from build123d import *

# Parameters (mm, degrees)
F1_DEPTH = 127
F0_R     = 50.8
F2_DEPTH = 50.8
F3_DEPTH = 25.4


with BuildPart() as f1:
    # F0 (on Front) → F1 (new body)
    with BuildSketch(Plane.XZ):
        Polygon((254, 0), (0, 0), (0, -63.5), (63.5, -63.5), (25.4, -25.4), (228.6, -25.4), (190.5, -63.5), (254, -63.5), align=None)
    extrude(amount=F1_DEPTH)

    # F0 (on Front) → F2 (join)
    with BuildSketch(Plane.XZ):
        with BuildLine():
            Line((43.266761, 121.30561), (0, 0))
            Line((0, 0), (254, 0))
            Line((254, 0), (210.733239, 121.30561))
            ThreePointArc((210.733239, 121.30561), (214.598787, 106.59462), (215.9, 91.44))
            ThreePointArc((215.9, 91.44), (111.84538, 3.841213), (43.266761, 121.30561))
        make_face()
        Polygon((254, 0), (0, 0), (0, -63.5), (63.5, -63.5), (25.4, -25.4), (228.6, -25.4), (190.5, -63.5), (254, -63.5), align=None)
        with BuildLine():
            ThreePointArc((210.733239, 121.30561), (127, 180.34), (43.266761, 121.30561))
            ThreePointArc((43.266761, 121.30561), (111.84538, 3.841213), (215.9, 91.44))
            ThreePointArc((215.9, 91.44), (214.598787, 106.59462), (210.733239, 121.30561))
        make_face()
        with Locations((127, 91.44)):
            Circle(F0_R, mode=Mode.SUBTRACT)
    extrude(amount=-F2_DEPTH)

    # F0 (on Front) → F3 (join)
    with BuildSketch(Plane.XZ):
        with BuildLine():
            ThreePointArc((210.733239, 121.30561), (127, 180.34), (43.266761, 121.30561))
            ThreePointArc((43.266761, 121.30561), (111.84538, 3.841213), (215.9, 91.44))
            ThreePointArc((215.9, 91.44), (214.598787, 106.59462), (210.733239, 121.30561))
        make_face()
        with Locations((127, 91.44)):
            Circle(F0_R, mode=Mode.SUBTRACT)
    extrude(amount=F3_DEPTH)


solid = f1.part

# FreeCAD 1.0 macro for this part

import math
import FreeCAD as App
import Part
import Sketcher

V = App.Vector
Q = App.Units.Quantity

doc = App.newDocument("Part")
body = doc.addObject("PartDesign::Body", "Body")

# Sketch on XZ plane
sketch1 = doc.addObject("Sketcher::SketchObject", "Sketch")
body.addObject(sketch1)
sketch1.AttachmentSupport = (doc.XZ_Plane, [""])
sketch1.MapMode = "FlatFace"
sketch1.addGeometry([
    Part.LineSegment(V(254, 0, 0), V(0, 0, 0)),  # 0
    Part.LineSegment(V(0, 0, 0), V(0, -64, 0)),  # 1
    Part.LineSegment(V(0, -64, 0), V(64, -64, 0)),  # 2
    Part.LineSegment(V(64, -64, 0), V(25, -25, 0)),  # 3
    Part.LineSegment(V(25, -25, 0), V(229, -25, 0)),  # 4
    Part.LineSegment(V(229, -25, 0), V(190, -64, 0)),  # 5
    Part.LineSegment(V(190, -64, 0), V(254, -64, 0)),  # 6
    Part.LineSegment(V(254, -64, 0), V(254, 0, 0)),  # 7
], False)
sketch1.addConstraint([
    Sketcher.Constraint("Coincident", 0, 2, 1, 1),
    Sketcher.Constraint("Coincident", 1, 2, 2, 1),
    Sketcher.Constraint("Coincident", 2, 2, 3, 1),
    Sketcher.Constraint("Coincident", 3, 2, 4, 1),
    Sketcher.Constraint("Coincident", 4, 2, 5, 1),
    Sketcher.Constraint("Coincident", 5, 2, 6, 1),
    Sketcher.Constraint("Coincident", 6, 2, 7, 1),
    Sketcher.Constraint("Coincident", 7, 2, 0, 1),
    Sketcher.Constraint("Horizontal", 0),
    Sketcher.Constraint("Vertical", 1),
    Sketcher.Constraint("Horizontal", 2),
    Sketcher.Constraint("Horizontal", 4),
    Sketcher.Constraint("Horizontal", 6),
    Sketcher.Constraint("Vertical", 7),
    Sketcher.Constraint("Coincident", 0, 2, -1, 1),
    Sketcher.Constraint("Perpendicular", 3, 5),
    Sketcher.Constraint("Horizontal", 2, 2, 5, 2),
    Sketcher.Constraint("Equal", 2, 6),
    Sketcher.Constraint("Equal", 6, 1),
    Sketcher.Constraint("Equal", 3, 5),
    Sketcher.Constraint("DistanceX", 0, 2, 0, 1, Q("10 in")),
    Sketcher.Constraint("DistanceX", 4, 1, 4, 2, Q("8 in")),
    Sketcher.Constraint("DistanceX", 2, 1, 2, 2, Q("2.5 in")),
])
pad1 = doc.addObject("PartDesign::Pad", "Pad")
body.addObject(pad1)
pad1.Profile = sketch1
pad1.Length = Q("5 in")

# Sketch on XZ plane
sketch2 = doc.addObject("Sketcher::SketchObject", "Sketch001")
body.addObject(sketch2)
sketch2.AttachmentSupport = (doc.XZ_Plane, [""])
sketch2.MapMode = "FlatFace"
sketch2.addGeometry([
    Part.LineSegment(V(43, 121, 0), V(0, 0, 0)),  # 0
    Part.LineSegment(V(0, 0, 0), V(0, -64, 0)),  # 1
    Part.LineSegment(V(0, -64, 0), V(64, -64, 0)),  # 2
    Part.LineSegment(V(64, -64, 0), V(25, -25, 0)),  # 3
    Part.LineSegment(V(25, -25, 0), V(229, -25, 0)),  # 4
    Part.LineSegment(V(229, -25, 0), V(190, -64, 0)),  # 5
    Part.LineSegment(V(190, -64, 0), V(254, -64, 0)),  # 6
    Part.LineSegment(V(254, -64, 0), V(254, 0, 0)),  # 7
    Part.LineSegment(V(254, 0, 0), V(211, 121, 0)),  # 8
    Part.ArcOfCircle(Part.Circle(V(127, 91, 0), V(0, 0, 1), 89), math.radians(20), math.radians(160)),  # 9
    Part.Circle(V(127, 91, 0), V(0, 0, 1), 51),  # 10
], False)
sketch2.addConstraint([
    Sketcher.Constraint("Coincident", 0, 2, 1, 1),
    Sketcher.Constraint("Coincident", 1, 2, 2, 1),
    Sketcher.Constraint("Coincident", 2, 2, 3, 1),
    Sketcher.Constraint("Coincident", 3, 2, 4, 1),
    Sketcher.Constraint("Coincident", 4, 2, 5, 1),
    Sketcher.Constraint("Coincident", 5, 2, 6, 1),
    Sketcher.Constraint("Coincident", 6, 2, 7, 1),
    Sketcher.Constraint("Coincident", 7, 2, 8, 1),
    Sketcher.Constraint("Tangent", 8, 2, 9, 1),
    Sketcher.Constraint("Tangent", 9, 2, 0, 1),
    Sketcher.Constraint("Vertical", 1),
    Sketcher.Constraint("Horizontal", 2),
    Sketcher.Constraint("Horizontal", 4),
    Sketcher.Constraint("Horizontal", 6),
    Sketcher.Constraint("Vertical", 7),
    Sketcher.Constraint("Coincident", 0, 2, -1, 1),
    Sketcher.Constraint("Coincident", 10, 3, 9, 3),
    Sketcher.Constraint("PointOnObject", 7, 2, -1),
    Sketcher.Constraint("Perpendicular", 3, 5),
    Sketcher.Constraint("Horizontal", 2, 2, 5, 2),
    Sketcher.Constraint("Horizontal", 8, 2, 9, 2),
    Sketcher.Constraint("Equal", 2, 6),
    Sketcher.Constraint("Equal", 6, 1),
    Sketcher.Constraint("Equal", 3, 5),
    Sketcher.Constraint("Diameter", 10, Q("4 in")),
    Sketcher.Constraint("Radius", 9, Q("3.5 in")),
    Sketcher.Constraint("DistanceX", 4, 1, 4, 2, Q("8 in")),
    Sketcher.Constraint("DistanceX", 2, 1, 2, 2, Q("2.5 in")),
    Sketcher.Constraint("DistanceX", -1, 1, 9, 3, Q("5 in")),
    Sketcher.Constraint("DistanceY", -1, 1, 9, 3, Q("3.6 in")),
])
pad2 = doc.addObject("PartDesign::Pad", "Pad001")
body.addObject(pad2)
pad2.Profile = sketch2
pad2.Length = Q("2 in")
pad2.Reversed = True

# Sketch on XZ plane
sketch3 = doc.addObject("Sketcher::SketchObject", "Sketch002")
body.addObject(sketch3)
sketch3.AttachmentSupport = (doc.XZ_Plane, [""])
sketch3.MapMode = "FlatFace"
sketch3.addGeometry([
    Part.ArcOfCircle(Part.Circle(V(127, 91, 0), V(0, 0, 1), 89), math.radians(20), math.radians(160)),
    Part.ArcOfCircle(Part.Circle(V(127, 91, 0), V(0, 0, 1), 89), math.radians(160), math.radians(360)),
    Part.ArcOfCircle(Part.Circle(V(127, 91, 0), V(0, 0, 1), 89), math.radians(0), math.radians(19.63)),
    Part.Circle(V(127, 91, 0), V(0, 0, 1), 51),
], False)
sketch3.addConstraint([
    Sketcher.Constraint("Tangent", 0, 2, 1, 1),
    Sketcher.Constraint("Tangent", 1, 2, 2, 1),
    Sketcher.Constraint("Tangent", 2, 2, 0, 1),
    Sketcher.Constraint("Coincident", 3, 3, 0, 3),
    Sketcher.Constraint("Horizontal", 3, 3, 1, 2),
    Sketcher.Constraint("Horizontal", 0, 2, 2, 2),
    Sketcher.Constraint("Diameter", 3, Q("4 in")),
    Sketcher.Constraint("Radius", 0, Q("3.5 in")),
    Sketcher.Constraint("DistanceX", -1, 1, 0, 3, Q("5 in")),
    Sketcher.Constraint("DistanceY", -1, 1, 0, 3, Q("3.6 in")),
    Sketcher.Constraint("DistanceX", -1, 1, 0, 2, Q("43.266761 mm")),
])
pad3 = doc.addObject("PartDesign::Pad", "Pad002")
body.addObject(pad3)
pad3.Profile = sketch3
pad3.Length = Q("1 in")

doc.recompute()
